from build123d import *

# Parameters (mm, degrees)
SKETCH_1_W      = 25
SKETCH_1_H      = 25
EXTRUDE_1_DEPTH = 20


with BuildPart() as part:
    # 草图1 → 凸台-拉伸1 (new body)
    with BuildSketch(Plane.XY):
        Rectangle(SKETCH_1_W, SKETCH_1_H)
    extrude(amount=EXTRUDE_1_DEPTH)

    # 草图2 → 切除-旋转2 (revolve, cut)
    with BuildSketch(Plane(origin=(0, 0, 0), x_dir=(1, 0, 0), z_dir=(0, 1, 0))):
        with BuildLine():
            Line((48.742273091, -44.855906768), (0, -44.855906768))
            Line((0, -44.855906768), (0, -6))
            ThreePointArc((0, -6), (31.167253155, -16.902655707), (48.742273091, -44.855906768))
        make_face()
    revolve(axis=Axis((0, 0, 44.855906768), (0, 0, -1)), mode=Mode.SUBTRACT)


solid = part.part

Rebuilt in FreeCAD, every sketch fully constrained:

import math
import FreeCAD as App
import Part
import Sketcher

V = App.Vector
Q = App.Units.Quantity


def add_polygon(sketch, points):
    """Adds a closed chain of lines whose ends are joined by coincident constraints."""
    first, n = sketch.GeometryCount, len(points)
    for a, b in zip(points, points[1:] + points[:1]):
        sketch.addGeometry(Part.LineSegment(App.Vector(*a, 0), App.Vector(*b, 0)), False)
    for i in range(n):
        sketch.addConstraint(Sketcher.Constraint("Coincident", first + i, 2, first + (i + 1) % n, 1))

doc = App.newDocument("Part")
body = doc.addObject("PartDesign::Body", "Body")

# Sketch on XY plane
sketch1 = body.newObject("Sketcher::SketchObject", "Sketch")
sketch1.AttachmentSupport = (doc.getObject("XY_Plane"), [""])
sketch1.MapMode = "FlatFace"
add_polygon(sketch1, [(-12, 12), (-12, -12), (12, -12), (12, 12)])  # lines 0-3
sketch1.addConstraint([
    Sketcher.Constraint("Vertical", 0),
    Sketcher.Constraint("Horizontal", 1),
    Sketcher.Constraint("Vertical", 2),
    Sketcher.Constraint("Horizontal", 3),
    Sketcher.Constraint("Symmetric", 0, 2, 2, 2, -1, 1),
    Sketcher.Constraint("Equal", 3, 0),
    Sketcher.Constraint("DistanceX", 1, 1, 1, 2, Q("25 mm")),
])
pad1 = body.newObject("PartDesign::Pad", "Pad")
pad1.Profile = sketch1
pad1.Length = 20

# Sketch on XZ plane
sketch2 = body.newObject("Sketcher::SketchObject", "Sketch001")
sketch2.AttachmentSupport = (doc.getObject("XZ_Plane"), [""])
sketch2.MapMode = "FlatFace"
sketch2.addGeometry([
    Part.LineSegment(V(0, 45, 0), V(49, 45, 0)),
    Part.ArcOfCircle(Part.Circle(V(0, 56, 0), V(0, 0, 1), 50), math.radians(-90), math.radians(-13)),
    Part.LineSegment(V(0, 6, 0), V(0, 45, 0)),
], False)
sketch2.addConstraint([
    Sketcher.Constraint("Coincident", 0, 2, 1, 2),
    Sketcher.Constraint("Coincident", 1, 1, 2, 1),
    Sketcher.Constraint("Coincident", 2, 2, 0, 1),
    Sketcher.Constraint("Horizontal", 0),
    Sketcher.Constraint("Vertical", 2),
    Sketcher.Constraint("PointOnObject", 1, 3, -2),
    Sketcher.Constraint("PointOnObject", 1, 1, -2),
    Sketcher.Constraint("Radius", 1, Q("50 mm")),
    Sketcher.Constraint("DistanceY", -1, 1, 1, 3, Q("56 mm")),
    Sketcher.Constraint("DistanceX", 0, 1, 0, 2, Q("48.742273 mm")),
])
groove = body.newObject("PartDesign::Groove", "Groove")
groove.Profile = sketch2
groove.ReferenceAxis = (sketch2, ["V_Axis"])
groove.Angle = 360

doc.recompute()
